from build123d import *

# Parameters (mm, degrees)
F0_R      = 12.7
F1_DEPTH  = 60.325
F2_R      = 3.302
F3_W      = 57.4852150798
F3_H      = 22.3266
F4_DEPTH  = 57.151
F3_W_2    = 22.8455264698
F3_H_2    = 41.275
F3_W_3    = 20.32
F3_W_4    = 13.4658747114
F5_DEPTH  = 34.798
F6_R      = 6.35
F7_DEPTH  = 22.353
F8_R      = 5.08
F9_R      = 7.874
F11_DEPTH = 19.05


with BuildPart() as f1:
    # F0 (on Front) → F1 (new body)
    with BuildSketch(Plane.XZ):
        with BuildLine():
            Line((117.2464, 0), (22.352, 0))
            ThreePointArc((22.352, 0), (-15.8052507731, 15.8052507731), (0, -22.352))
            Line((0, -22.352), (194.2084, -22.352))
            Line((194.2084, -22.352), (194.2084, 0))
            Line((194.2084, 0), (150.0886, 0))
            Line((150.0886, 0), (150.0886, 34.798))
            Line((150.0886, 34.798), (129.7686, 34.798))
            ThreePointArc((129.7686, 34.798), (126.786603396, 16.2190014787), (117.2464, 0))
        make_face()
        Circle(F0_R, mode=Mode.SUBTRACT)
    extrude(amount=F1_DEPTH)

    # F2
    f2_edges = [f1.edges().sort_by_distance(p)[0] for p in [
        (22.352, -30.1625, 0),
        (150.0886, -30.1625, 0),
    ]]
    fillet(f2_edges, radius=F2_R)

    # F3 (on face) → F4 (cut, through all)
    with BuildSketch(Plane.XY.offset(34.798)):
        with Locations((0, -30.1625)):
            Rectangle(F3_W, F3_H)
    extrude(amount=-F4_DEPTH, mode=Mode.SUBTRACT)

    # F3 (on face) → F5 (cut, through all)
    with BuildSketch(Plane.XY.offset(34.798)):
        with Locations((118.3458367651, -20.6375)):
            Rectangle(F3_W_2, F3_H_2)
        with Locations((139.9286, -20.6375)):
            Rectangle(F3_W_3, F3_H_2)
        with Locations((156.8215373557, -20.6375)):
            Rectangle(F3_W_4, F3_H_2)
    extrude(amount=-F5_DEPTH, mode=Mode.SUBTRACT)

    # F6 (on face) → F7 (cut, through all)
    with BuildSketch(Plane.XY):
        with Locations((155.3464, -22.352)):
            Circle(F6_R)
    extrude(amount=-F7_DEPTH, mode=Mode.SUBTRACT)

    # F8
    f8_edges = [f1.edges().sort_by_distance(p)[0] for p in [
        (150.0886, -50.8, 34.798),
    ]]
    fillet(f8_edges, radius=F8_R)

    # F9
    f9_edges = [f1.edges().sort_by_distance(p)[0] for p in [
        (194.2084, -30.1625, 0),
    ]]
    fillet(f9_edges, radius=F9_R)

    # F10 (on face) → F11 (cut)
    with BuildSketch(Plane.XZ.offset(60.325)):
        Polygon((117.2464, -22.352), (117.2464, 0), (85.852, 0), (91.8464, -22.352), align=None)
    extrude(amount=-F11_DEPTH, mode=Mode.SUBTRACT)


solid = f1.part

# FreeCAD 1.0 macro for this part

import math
import FreeCAD as App
import Part
import Sketcher

V = App.Vector
Q = App.Units.Quantity


def edges_at(feature, points):
    """Names of the edges that pass closest to the given points."""
    edges = feature.Shape.Edges
    near = lambda p: min(range(len(edges)), key=lambda i: edges[i].distToShape(Part.Vertex(*p))[0])
    return sorted({f"Edge{near(p) + 1}" for p in points})

doc = App.newDocument("Part")
body = doc.addObject("PartDesign::Body", "Body")

# Sketch on XZ plane
sketch1 = body.newObject("Sketcher::SketchObject", "Sketch")
sketch1.AttachmentSupport = (doc.getObject("XZ_Plane"), [""])
sketch1.MapMode = "FlatFace"
sketch1.addGeometry([
    Part.LineSegment(V(117, 0, 0), V(22, 0, 0)),  # 0
    Part.ArcOfCircle(Part.Circle(V(0, 0, 0), V(0, 0, 1), 22), math.radians(0), math.radians(270)),  # 1
    Part.LineSegment(V(0, -22, 0), V(194, -22, 0)),  # 2
    Part.LineSegment(V(194, -22, 0), V(194, 0, 0)),  # 3
    Part.LineSegment(V(194, 0, 0), V(150, 0, 0)),  # 4
    Part.LineSegment(V(150, 0, 0), V(150, 35, 0)),  # 5
    Part.LineSegment(V(150, 35, 0), V(130, 35, 0)),  # 6
    Part.ArcOfCircle(Part.Circle(V(79, 33, 0), V(0, 0, 1), 51), math.radians(-41), math.radians(2)),  # 7
    Part.Circle(V(0, 0, 0), V(0, 0, 1), 13),  # 8
], False)
sketch1.addConstraint([
    Sketcher.Constraint("Coincident", 0, 2, 1, 1),
    Sketcher.Constraint("Tangent", 1, 2, 2, 1),
    Sketcher.Constraint("Coincident", 2, 2, 3, 1),
    Sketcher.Constraint("Coincident", 3, 2, 4, 1),
    Sketcher.Constraint("Coincident", 4, 2, 5, 1),
    Sketcher.Constraint("Coincident", 5, 2, 6, 1),
    Sketcher.Constraint("Coincident", 6, 2, 7, 2),
    Sketcher.Constraint("Coincident", 7, 1, 0, 1),
    Sketcher.Constraint("Horizontal", 0),
    Sketcher.Constraint("Horizontal", 2),
    Sketcher.Constraint("Vertical", 3),
    Sketcher.Constraint("Horizontal", 4),
    Sketcher.Constraint("Vertical", 5),
    Sketcher.Constraint("Horizontal", 6),
    Sketcher.Constraint("Coincident", 1, 3, -1, 1),
    Sketcher.Constraint("Coincident", 8, 3, -1, 1),
    Sketcher.Constraint("PointOnObject", 0, 2, -1),
    Sketcher.Constraint("PointOnObject", 3, 2, -1),
    Sketcher.Constraint("Diameter", 8, Q("1 in")),
    Sketcher.Constraint("Radius", 7, Q("2 in")),
    Sketcher.Constraint("Radius", 1, Q("0.88 in")),
    Sketcher.Constraint("DistanceX", 6, 2, 6, 1, Q("0.8 in")),
    Sketcher.Constraint("DistanceY", 5, 1, 5, 2, Q("1.37 in")),
    Sketcher.Constraint("DistanceX", 0, 2, 0, 1, Q("3.736 in")),
    Sketcher.Constraint("DistanceX", 2, 1, 2, 2, Q("7.646 in")),
    Sketcher.Constraint("DistanceX", 4, 2, 4, 1, Q("1.737 in")),
])
pad1 = body.newObject("PartDesign::Pad", "Pad")
pad1.Profile = sketch1
pad1.Length = Q("2.375 in")
doc.recompute()

fillet = body.newObject("PartDesign::Fillet", "Fillet")
fillet.Base = (pad1, edges_at(pad1, [(22.352, -30.163, 0), (150.089, -30.163, 0)]))
fillet.Radius = Q("0.13 in")

# Sketch on XY plane
sketch2 = body.newObject("Sketcher::SketchObject", "Sketch001")
sketch2.AttachmentSupport = (doc.getObject("XY_Plane"), [""])
sketch2.MapMode = "FlatFace"
sketch2.AttachmentOffset = App.Placement(V(0, 0, 1.37 * 25.4), App.Rotation())
sketch2.addGeometry([
    Part.LineSegment(V(-29, -19, 0), V(-29, -41, 0)),
    Part.LineSegment(V(-29, -41, 0), V(29, -41, 0)),
    Part.LineSegment(V(29, -41, 0), V(29, -19, 0)),
    Part.LineSegment(V(29, -19, 0), V(-29, -19, 0)),
], False)
sketch2.addConstraint([
    Sketcher.Constraint("Coincident", 0, 2, 1, 1),
    Sketcher.Constraint("Coincident", 1, 2, 2, 1),
    Sketcher.Constraint("Coincident", 2, 2, 3, 1),
    Sketcher.Constraint("Coincident", 3, 2, 0, 1),
    Sketcher.Constraint("Vertical", 0),
    Sketcher.Constraint("Horizontal", 1),
    Sketcher.Constraint("Vertical", 2),
    Sketcher.Constraint("Horizontal", 3),
    Sketcher.Constraint("DistanceY", 0, 2, 0, 1, Q("0.879 in")),
    Sketcher.Constraint("DistanceY", 0, 2, -1, 1, Q("1.627 in")),
    Sketcher.Constraint("DistanceX", 1, 1, 1, 2, Q("57.485215 mm")),
    Sketcher.Constraint("DistanceX", 0, 2, -1, 1, Q("28.742608 mm")),
])
pocket1 = body.newObject("PartDesign::Pocket", "Pocket")
pocket1.Profile = sketch2
pocket1.Type = "ThroughAll"

# Sketch on XY plane
sketch3 = body.newObject("Sketcher::SketchObject", "Sketch002")
sketch3.AttachmentSupport = (doc.getObject("XY_Plane"), [""])
sketch3.MapMode = "FlatFace"
sketch3.AttachmentOffset = App.Placement(V(0, 0, 1.37 * 25.4), App.Rotation())
sketch3.addGeometry([
    Part.LineSegment(V(107, 0, 0), V(107, -41, 0)),
    Part.LineSegment(V(107, -41, 0), V(164, -41, 0)),
    Part.LineSegment(V(164, -41, 0), V(164, 0, 0)),
    Part.LineSegment(V(164, 0, 0), V(107, 0, 0)),
], False)
sketch3.addConstraint([
    Sketcher.Constraint("Coincident", 0, 2, 1, 1),
    Sketcher.Constraint("Coincident", 1, 2, 2, 1),
    Sketcher.Constraint("Coincident", 2, 2, 3, 1),
    Sketcher.Constraint("Coincident", 3, 2, 0, 1),
    Sketcher.Constraint("Vertical", 0),
    Sketcher.Constraint("Horizontal", 1),
    Sketcher.Constraint("Vertical", 2),
    Sketcher.Constraint("Horizontal", 3),
    Sketcher.Constraint("PointOnObject", 2, 2, -1),
    Sketcher.Constraint("DistanceY", 0, 2, 0, 1, Q("1.625 in")),
    Sketcher.Constraint("DistanceX", 1, 1, 1, 2, Q("56.631401 mm")),
    Sketcher.Constraint("DistanceX", -1, 1, 0, 2, Q("106.923074 mm")),
])
pocket2 = body.newObject("PartDesign::Pocket", "Pocket001")
pocket2.Profile = sketch3
pocket2.Length = Q("1.37 in")

# Sketch on XY plane
sketch4 = body.newObject("Sketcher::SketchObject", "Sketch003")
sketch4.AttachmentSupport = (doc.getObject("XY_Plane"), [""])
sketch4.MapMode = "FlatFace"
sketch4.addGeometry(Part.Circle(V(155, -22, 0), V(0, 0, 1), 6), False)
sketch4.addConstraint([
    Sketcher.Constraint("Diameter", 0, Q("0.5 in")),
    Sketcher.Constraint("DistanceY", 0, 3, -1, 1, Q("0.88 in")),
    Sketcher.Constraint("DistanceX", -1, 1, 0, 3, Q("6.116 in")),
])
pocket3 = body.newObject("PartDesign::Pocket", "Pocket002")
pocket3.Profile = sketch4
pocket3.Type = "ThroughAll"
doc.recompute()

fillet2 = body.newObject("PartDesign::Fillet", "Fillet001")
fillet2.Base = (pocket3, edges_at(pocket3, [(150.089, -50.8, 34.798)]))
fillet2.Radius = Q("0.2 in")
doc.recompute()

fillet3 = body.newObject("PartDesign::Fillet", "Fillet002")
fillet3.Base = (fillet2, edges_at(fillet2, [(194.208, -30.163, 0)]))
fillet3.Radius = Q("0.31 in")

# Sketch on XZ plane
sketch5 = body.newObject("Sketcher::SketchObject", "Sketch004")
sketch5.AttachmentSupport = (doc.getObject("XZ_Plane"), [""])
sketch5.MapMode = "FlatFace"
sketch5.AttachmentOffset = App.Placement(V(0, 0, 2.375 * 25.4), App.Rotation())
sketch5.addGeometry([
    Part.LineSegment(V(117, -22, 0), V(117, 0, 0)),
    Part.LineSegment(V(117, 0, 0), V(86, 0, 0)),
    Part.LineSegment(V(86, 0, 0), V(92, -22, 0)),
    Part.LineSegment(V(92, -22, 0), V(117, -22, 0)),
], False)
sketch5.addConstraint([
    Sketcher.Constraint("Coincident", 0, 2, 1, 1),
    Sketcher.Constraint("Coincident", 1, 2, 2, 1),
    Sketcher.Constraint("Coincident", 2, 2, 3, 1),
    Sketcher.Constraint("Coincident", 3, 2, 0, 1),
    Sketcher.Constraint("Vertical", 0),
    Sketcher.Constraint("Horizontal", 1),
    Sketcher.Constraint("Horizontal", 3),
    Sketcher.Constraint("PointOnObject", 0, 2, -1),
    Sketcher.Constraint("DistanceX", 3, 1, 3, 2, Q("1 in")),
    Sketcher.Constraint("DistanceY", 0, 1, 0, 2, Q("0.88 in")),
    Sketcher.Constraint("DistanceX", 1, 2, 1, 1, Q("1.236 in")),
    Sketcher.Constraint("DistanceX", -1, 1, 1, 2, Q("3.38 in")),
])
pocket4 = body.newObject("PartDesign::Pocket", "Pocket003")
pocket4.Profile = sketch5
pocket4.Length = Q("0.75 in")

doc.recompute()
